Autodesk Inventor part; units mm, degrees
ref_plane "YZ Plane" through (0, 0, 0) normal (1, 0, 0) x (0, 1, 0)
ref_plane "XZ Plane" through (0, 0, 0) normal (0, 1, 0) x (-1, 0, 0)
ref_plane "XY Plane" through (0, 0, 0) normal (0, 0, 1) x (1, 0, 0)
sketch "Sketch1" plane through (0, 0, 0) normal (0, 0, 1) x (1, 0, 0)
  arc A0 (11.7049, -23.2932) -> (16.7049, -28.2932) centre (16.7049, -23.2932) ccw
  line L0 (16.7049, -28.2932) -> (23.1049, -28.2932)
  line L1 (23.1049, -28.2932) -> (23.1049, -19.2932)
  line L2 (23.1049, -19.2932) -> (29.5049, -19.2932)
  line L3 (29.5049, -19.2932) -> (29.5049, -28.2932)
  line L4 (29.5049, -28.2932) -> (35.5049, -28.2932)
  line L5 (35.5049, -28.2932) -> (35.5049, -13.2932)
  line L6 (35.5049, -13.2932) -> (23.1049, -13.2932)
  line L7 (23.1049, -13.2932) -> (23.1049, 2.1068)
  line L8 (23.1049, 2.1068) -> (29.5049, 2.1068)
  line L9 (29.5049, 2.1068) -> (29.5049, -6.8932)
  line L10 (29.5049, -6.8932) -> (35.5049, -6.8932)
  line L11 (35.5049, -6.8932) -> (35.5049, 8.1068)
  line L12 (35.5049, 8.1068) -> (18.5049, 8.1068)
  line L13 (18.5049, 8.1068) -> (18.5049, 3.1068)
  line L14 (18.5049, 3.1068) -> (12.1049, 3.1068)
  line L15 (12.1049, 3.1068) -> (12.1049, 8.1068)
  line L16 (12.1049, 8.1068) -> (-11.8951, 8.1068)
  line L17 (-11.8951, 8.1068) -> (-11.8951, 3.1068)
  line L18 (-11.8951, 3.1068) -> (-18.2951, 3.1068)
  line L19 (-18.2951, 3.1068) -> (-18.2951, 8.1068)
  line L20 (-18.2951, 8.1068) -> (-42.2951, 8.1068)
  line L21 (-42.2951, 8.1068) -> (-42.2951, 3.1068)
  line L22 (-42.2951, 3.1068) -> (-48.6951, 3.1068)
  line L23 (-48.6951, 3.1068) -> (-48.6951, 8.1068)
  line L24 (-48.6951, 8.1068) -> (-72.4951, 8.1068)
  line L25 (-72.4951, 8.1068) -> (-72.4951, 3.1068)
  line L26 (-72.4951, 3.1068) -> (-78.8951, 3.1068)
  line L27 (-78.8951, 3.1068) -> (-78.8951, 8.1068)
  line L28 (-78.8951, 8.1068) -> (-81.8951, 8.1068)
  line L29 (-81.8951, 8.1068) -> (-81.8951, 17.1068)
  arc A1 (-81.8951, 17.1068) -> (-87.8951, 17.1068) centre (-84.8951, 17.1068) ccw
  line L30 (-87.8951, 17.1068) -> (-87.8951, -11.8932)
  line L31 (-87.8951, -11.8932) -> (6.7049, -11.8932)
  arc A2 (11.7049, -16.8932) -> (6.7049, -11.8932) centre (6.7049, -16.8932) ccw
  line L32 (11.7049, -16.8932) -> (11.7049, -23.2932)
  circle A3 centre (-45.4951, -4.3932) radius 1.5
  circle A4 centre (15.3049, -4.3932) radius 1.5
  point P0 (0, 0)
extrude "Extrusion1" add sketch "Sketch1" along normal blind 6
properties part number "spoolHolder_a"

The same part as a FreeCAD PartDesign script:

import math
import FreeCAD as App
import Part
import Sketcher
from FreeCAD import Vector

doc = App.newDocument("Part")
body = doc.addObject("PartDesign::Body", "Body")

# Sketch on XY plane
sketch1 = body.newObject("Sketcher::SketchObject", "Sketch")
sketch1.AttachmentSupport = (doc.getObject("XY_Plane"), [""])
sketch1.MapMode = "FlatFace"
sketch1.addGeometry(Part.LineSegment(Vector(11.7, -16.9, 0), Vector(11.7, -23.3, 0)), False)
sketch1.addGeometry(Part.ArcOfCircle(Part.Circle(Vector(16.7, -23.3, 0), Vector(0, 0, 1), 5), math.radians(180), math.radians(270)), False)
sketch1.addGeometry(Part.LineSegment(Vector(16.7, -28.3, 0), Vector(23.1, -28.3, 0)), False)
sketch1.addGeometry(Part.LineSegment(Vector(23.1, -28.3, 0), Vector(23.1, -19.3, 0)), False)
sketch1.addGeometry(Part.LineSegment(Vector(23.1, -19.3, 0), Vector(29.5, -19.3, 0)), False)
sketch1.addGeometry(Part.LineSegment(Vector(29.5, -19.3, 0), Vector(29.5, -28.3, 0)), False)
sketch1.addGeometry(Part.LineSegment(Vector(29.5, -28.3, 0), Vector(35.5, -28.3, 0)), False)
sketch1.addGeometry(Part.LineSegment(Vector(35.5, -28.3, 0), Vector(35.5, -13.3, 0)), False)
sketch1.addGeometry(Part.LineSegment(Vector(35.5, -13.3, 0), Vector(23.1, -13.3, 0)), False)
sketch1.addGeometry(Part.LineSegment(Vector(23.1, -13.3, 0), Vector(23.1, 2.1, 0)), False)
sketch1.addGeometry(Part.LineSegment(Vector(23.1, 2.1, 0), Vector(29.5, 2.1, 0)), False)
sketch1.addGeometry(Part.LineSegment(Vector(29.5, 2.1, 0), Vector(29.5, -6.9, 0)), False)
sketch1.addGeometry(Part.LineSegment(Vector(29.5, -6.9, 0), Vector(35.5, -6.9, 0)), False)
sketch1.addGeometry(Part.LineSegment(Vector(35.5, -6.9, 0), Vector(35.5, 8.1, 0)), False)
sketch1.addGeometry(Part.LineSegment(Vector(35.5, 8.1, 0), Vector(18.5, 8.1, 0)), False)
sketch1.addGeometry(Part.LineSegment(Vector(18.5, 8.1, 0), Vector(18.5, 3.1, 0)), False)
sketch1.addGeometry(Part.LineSegment(Vector(18.5, 3.1, 0), Vector(12.1, 3.1, 0)), False)
sketch1.addGeometry(Part.LineSegment(Vector(12.1, 3.1, 0), Vector(12.1, 8.1, 0)), False)
sketch1.addGeometry(Part.LineSegment(Vector(12.1, 8.1, 0), Vector(-11.9, 8.1, 0)), False)
sketch1.addGeometry(Part.LineSegment(Vector(-11.9, 8.1, 0), Vector(-11.9, 3.1, 0)), False)
sketch1.addGeometry(Part.LineSegment(Vector(-11.9, 3.1, 0), Vector(-18.3, 3.1, 0)), False)
sketch1.addGeometry(Part.LineSegment(Vector(-18.3, 3.1, 0), Vector(-18.3, 8.1, 0)), False)
sketch1.addGeometry(Part.LineSegment(Vector(-18.3, 8.1, 0), Vector(-42.3, 8.1, 0)), False)
sketch1.addGeometry(Part.LineSegment(Vector(-42.3, 8.1, 0), Vector(-42.3, 3.1, 0)), False)
sketch1.addGeometry(Part.LineSegment(Vector(-42.3, 3.1, 0), Vector(-48.7, 3.1, 0)), False)
sketch1.addGeometry(Part.LineSegment(Vector(-48.7, 3.1, 0), Vector(-48.7, 8.1, 0)), False)
sketch1.addGeometry(Part.LineSegment(Vector(-48.7, 8.1, 0), Vector(-72.5, 8.1, 0)), False)
sketch1.addGeometry(Part.LineSegment(Vector(-72.5, 8.1, 0), Vector(-72.5, 3.1, 0)), False)
sketch1.addGeometry(Part.LineSegment(Vector(-72.5, 3.1, 0), Vector(-78.9, 3.1, 0)), False)
sketch1.addGeometry(Part.LineSegment(Vector(-78.9, 3.1, 0), Vector(-78.9, 8.1, 0)), False)
sketch1.addGeometry(Part.LineSegment(Vector(-78.9, 8.1, 0), Vector(-81.9, 8.1, 0)), False)
sketch1.addGeometry(Part.LineSegment(Vector(-81.9, 8.1, 0), Vector(-81.9, 17.1, 0)), False)
sketch1.addGeometry(Part.ArcOfCircle(Part.Circle(Vector(-84.9, 17.1, 0), Vector(0, 0, 1), 3), math.radians(0), math.radians(180)), False)
sketch1.addGeometry(Part.LineSegment(Vector(-87.9, 17.1, 0), Vector(-87.9, -11.9, 0)), False)
sketch1.addGeometry(Part.LineSegment(Vector(-87.9, -11.9, 0), Vector(6.7, -11.9, 0)), False)
sketch1.addGeometry(Part.ArcOfCircle(Part.Circle(Vector(6.7, -16.9, 0), Vector(0, 0, 1), 5), math.radians(0), math.radians(90)), False)
sketch1.addGeometry(Part.Circle(Vector(-45.5, -4.4, 0), Vector(0, 0, 1), 1.5), False)
sketch1.addGeometry(Part.Circle(Vector(15.3, -4.4, 0), Vector(0, 0, 1), 1.5), False)
sketch1.addConstraint(Sketcher.Constraint("Tangent", 0, 2, 1, 1))
sketch1.addConstraint(Sketcher.Constraint("Tangent", 1, 2, 2, 1))
sketch1.addConstraint(Sketcher.Constraint("Coincident", 2, 2, 3, 1))
sketch1.addConstraint(Sketcher.Constraint("Coincident", 3, 2, 4, 1))
sketch1.addConstraint(Sketcher.Constraint("Coincident", 4, 2, 5, 1))
sketch1.addConstraint(Sketcher.Constraint("Coincident", 5, 2, 6, 1))
sketch1.addConstraint(Sketcher.Constraint("Coincident", 6, 2, 7, 1))
sketch1.addConstraint(Sketcher.Constraint("Coincident", 7, 2, 8, 1))
sketch1.addConstraint(Sketcher.Constraint("Coincident", 8, 2, 9, 1))
sketch1.addConstraint(Sketcher.Constraint("Coincident", 9, 2, 10, 1))
sketch1.addConstraint(Sketcher.Constraint("Coincident", 10, 2, 11, 1))
sketch1.addConstraint(Sketcher.Constraint("Coincident", 11, 2, 12, 1))
sketch1.addConstraint(Sketcher.Constraint("Coincident", 12, 2, 13, 1))
sketch1.addConstraint(Sketcher.Constraint("Coincident", 13, 2, 14, 1))
sketch1.addConstraint(Sketcher.Constraint("Coincident", 14, 2, 15, 1))
sketch1.addConstraint(Sketcher.Constraint("Coincident", 15, 2, 16, 1))
sketch1.addConstraint(Sketcher.Constraint("Coincident", 16, 2, 17, 1))
sketch1.addConstraint(Sketcher.Constraint("Coincident", 17, 2, 18, 1))
sketch1.addConstraint(Sketcher.Constraint("Coincident", 18, 2, 19, 1))
sketch1.addConstraint(Sketcher.Constraint("Coincident", 19, 2, 20, 1))
sketch1.addConstraint(Sketcher.Constraint("Coincident", 20, 2, 21, 1))
sketch1.addConstraint(Sketcher.Constraint("Coincident", 21, 2, 22, 1))
sketch1.addConstraint(Sketcher.Constraint("Coincident", 22, 2, 23, 1))
sketch1.addConstraint(Sketcher.Constraint("Coincident", 23, 2, 24, 1))
sketch1.addConstraint(Sketcher.Constraint("Coincident", 24, 2, 25, 1))
sketch1.addConstraint(Sketcher.Constraint("Coincident", 25, 2, 26, 1))
sketch1.addConstraint(Sketcher.Constraint("Coincident", 26, 2, 27, 1))
sketch1.addConstraint(Sketcher.Constraint("Coincident", 27, 2, 28, 1))
sketch1.addConstraint(Sketcher.Constraint("Coincident", 28, 2, 29, 1))
sketch1.addConstraint(Sketcher.Constraint("Coincident", 29, 2, 30, 1))
sketch1.addConstraint(Sketcher.Constraint("Coincident", 30, 2, 31, 1))
sketch1.addConstraint(Sketcher.Constraint("Tangent", 31, 2, 32, 1))
sketch1.addConstraint(Sketcher.Constraint("Tangent", 32, 2, 33, 1))
sketch1.addConstraint(Sketcher.Constraint("Coincident", 33, 2, 34, 1))
sketch1.addConstraint(Sketcher.Constraint("Tangent", 34, 2, 35, 2))
sketch1.addConstraint(Sketcher.Constraint("Tangent", 35, 1, 0, 1))
sketch1.addConstraint(Sketcher.Constraint("Vertical", 0))
sketch1.addConstraint(Sketcher.Constraint("Horizontal", 2))
sketch1.addConstraint(Sketcher.Constraint("Vertical", 3))
sketch1.addConstraint(Sketcher.Constraint("Horizontal", 4))
sketch1.addConstraint(Sketcher.Constraint("Vertical", 5))
sketch1.addConstraint(Sketcher.Constraint("Horizontal", 6))
sketch1.addConstraint(Sketcher.Constraint("Vertical", 7))
sketch1.addConstraint(Sketcher.Constraint("Horizontal", 8))
sketch1.addConstraint(Sketcher.Constraint("Vertical", 9))
sketch1.addConstraint(Sketcher.Constraint("Horizontal", 10))
sketch1.addConstraint(Sketcher.Constraint("Vertical", 11))
sketch1.addConstraint(Sketcher.Constraint("Horizontal", 12))
sketch1.addConstraint(Sketcher.Constraint("Vertical", 13))
sketch1.addConstraint(Sketcher.Constraint("Horizontal", 14))
sketch1.addConstraint(Sketcher.Constraint("Vertical", 15))
sketch1.addConstraint(Sketcher.Constraint("Horizontal", 16))
sketch1.addConstraint(Sketcher.Constraint("Vertical", 17))
sketch1.addConstraint(Sketcher.Constraint("Horizontal", 18))
sketch1.addConstraint(Sketcher.Constraint("Vertical", 19))
sketch1.addConstraint(Sketcher.Constraint("Horizontal", 20))
sketch1.addConstraint(Sketcher.Constraint("Vertical", 21))
sketch1.addConstraint(Sketcher.Constraint("Horizontal", 22))
sketch1.addConstraint(Sketcher.Constraint("Vertical", 23))
sketch1.addConstraint(Sketcher.Constraint("Horizontal", 24))
sketch1.addConstraint(Sketcher.Constraint("Vertical", 25))
sketch1.addConstraint(Sketcher.Constraint("Horizontal", 26))
sketch1.addConstraint(Sketcher.Constraint("Vertical", 27))
sketch1.addConstraint(Sketcher.Constraint("Horizontal", 28))
sketch1.addConstraint(Sketcher.Constraint("Vertical", 29))
sketch1.addConstraint(Sketcher.Constraint("Horizontal", 30))
sketch1.addConstraint(Sketcher.Constraint("Vertical", 31))
sketch1.addConstraint(Sketcher.Constraint("Vertical", 33))
sketch1.addConstraint(Sketcher.Constraint("Horizontal", 34))
sketch1.addConstraint(Sketcher.Constraint("Equal", 1, 35))
sketch1.addConstraint(Sketcher.Constraint("Equal", 36, 37))
sketch1.addConstraint(Sketcher.Constraint("Horizontal", 36, 3, 37, 3))
sketch1.addConstraint(Sketcher.Constraint("Horizontal", 2, 2, 5, 2))
sketch1.addConstraint(Sketcher.Constraint("Horizontal", 14, 2, 17, 2))
sketch1.addConstraint(Sketcher.Constraint("Horizontal", 16, 2, 19, 2))
sketch1.addConstraint(Sketcher.Constraint("Horizontal", 18, 2, 21, 2))
sketch1.addConstraint(Sketcher.Constraint("Horizontal", 20, 2, 23, 2))
sketch1.addConstraint(Sketcher.Constraint("Horizontal", 22, 2, 25, 2))
sketch1.addConstraint(Sketcher.Constraint("Horizontal", 24, 2, 27, 2))
sketch1.addConstraint(Sketcher.Constraint("Horizontal", 26, 2, 29, 2))
sketch1.addConstraint(Sketcher.Constraint("Vertical", 3, 2, 8, 2))
sketch1.addConstraint(Sketcher.Constraint("Vertical", 5, 2, 10, 2))
sketch1.addConstraint(Sketcher.Constraint("Vertical", 7, 2, 12, 2))
sketch1.addConstraint(Sketcher.Constraint("Equal", 2, 4))
sketch1.addConstraint(Sketcher.Constraint("Equal", 10, 16))
sketch1.addConstraint(Sketcher.Constraint("Equal", 16, 20))
sketch1.addConstraint(Sketcher.Constraint("Equal", 18, 22))
sketch1.addConstraint(Sketcher.Constraint("Equal", 20, 24))
sketch1.addConstraint(Sketcher.Constraint("Equal", 24, 28))
sketch1.addConstraint(Sketcher.Constraint("Equal", 28, 0))
sketch1.addConstraint(Sketcher.Constraint("Equal", 5, 11))
sketch1.addConstraint(Sketcher.Constraint("Equal", 7, 13))
sketch1.addConstraint(Sketcher.Constraint("Equal", 11, 31))
sketch1.addConstraint(Sketcher.Constraint("Diameter", 36, 3.0))
sketch1.addConstraint(Sketcher.Constraint("Radius", 1, 5.0))
sketch1.addConstraint(Sketcher.Constraint("Radius", 32, 3.0))
sketch1.addConstraint(Sketcher.Constraint("DistanceX", 6, 1, 6, 2, 6.0))
sketch1.addConstraint(Sketcher.Constraint("DistanceX", 14, 2, 14, 1, 17.0))
sketch1.addConstraint(Sketcher.Constraint("DistanceX", 18, 2, 18, 1, 24.0))
sketch1.addConstraint(Sketcher.Constraint("DistanceX", 30, 2, 30, 1, 3.0))
sketch1.addConstraint(Sketcher.Constraint("DistanceY", 3, 1, 3, 2, 9.0))
sketch1.addConstraint(Sketcher.Constraint("DistanceY", 7, 1, 7, 2, 15.0))
sketch1.addConstraint(Sketcher.Constraint("DistanceY", 15, 2, 15, 1, 5.0))
sketch1.addConstraint(Sketcher.Constraint("DistanceY", 33, 2, 33, 1, 29.0))
sketch1.addConstraint(Sketcher.Constraint("DistanceX", 2, 1, 2, 2, 6.4))
sketch1.addConstraint(Sketcher.Constraint("DistanceX", 26, 2, 26, 1, 23.8))
sketch1.addConstraint(Sketcher.Constraint("DistanceX", 26, 2, 36, 3, 27.0))
sketch1.addConstraint(Sketcher.Constraint("DistanceY", 36, 3, 32, 3, 21.5))
sketch1.addConstraint(Sketcher.Constraint("DistanceX", 35, 3, 37, 3, 8.6))
sketch1.addConstraint(Sketcher.Constraint("DistanceX", -1, 1, 1, 3, 16.705))
sketch1.addConstraint(Sketcher.Constraint("DistanceY", 1, 3, -1, 1, 23.2932))
pad1 = body.newObject("PartDesign::Pad", "Pad")
pad1.Profile = sketch1
pad1.Length = 6

doc.recompute()
